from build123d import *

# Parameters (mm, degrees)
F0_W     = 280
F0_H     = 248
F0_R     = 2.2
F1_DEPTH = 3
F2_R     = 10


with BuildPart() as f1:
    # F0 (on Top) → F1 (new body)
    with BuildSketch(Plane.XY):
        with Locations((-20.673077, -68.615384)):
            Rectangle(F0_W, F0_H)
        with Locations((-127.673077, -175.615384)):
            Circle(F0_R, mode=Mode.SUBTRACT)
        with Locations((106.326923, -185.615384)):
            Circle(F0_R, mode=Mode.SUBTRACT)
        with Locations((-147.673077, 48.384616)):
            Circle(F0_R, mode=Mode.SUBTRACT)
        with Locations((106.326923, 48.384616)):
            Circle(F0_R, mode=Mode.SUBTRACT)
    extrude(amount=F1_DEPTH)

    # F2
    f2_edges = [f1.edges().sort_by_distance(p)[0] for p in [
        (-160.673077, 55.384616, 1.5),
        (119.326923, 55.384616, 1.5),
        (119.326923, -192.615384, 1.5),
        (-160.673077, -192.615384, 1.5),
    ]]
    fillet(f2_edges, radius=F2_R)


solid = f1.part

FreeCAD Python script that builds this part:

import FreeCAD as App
import Part
import Sketcher

V = App.Vector


def edges_at(feature, points):
    """Names of the edges that pass closest to the given points."""
    edges = feature.Shape.Edges
    near = lambda p: min(range(len(edges)), key=lambda i: edges[i].distToShape(Part.Vertex(*p))[0])
    return sorted({f"Edge{near(p) + 1}" for p in points})


def add_polygon(sketch, points):
    """Adds a closed chain of lines whose ends are joined by coincident constraints."""
    first, n = sketch.GeometryCount, len(points)
    for a, b in zip(points, points[1:] + points[:1]):
        sketch.addGeometry(Part.LineSegment(App.Vector(*a, 0), App.Vector(*b, 0)), False)
    for i in range(n):
        sketch.addConstraint(Sketcher.Constraint("Coincident", first + i, 2, first + (i + 1) % n, 1))

doc = App.newDocument("Part")
body = doc.addObject("PartDesign::Body", "Body")

# Sketch on XY plane
sketch1 = body.newObject("Sketcher::SketchObject", "Sketch")
sketch1.AttachmentSupport = (doc.getObject("XY_Plane"), [""])
sketch1.MapMode = "FlatFace"
add_polygon(sketch1, [(-160.7, 55.4), (-160.7, -192.6), (119.3, -192.6), (119.3, 55.4)])  # lines 0-3
sketch1.addGeometry(Part.Circle(V(-127.7, -175.6, 0), V(0, 0, 1), 2.2), False)  # 4
sketch1.addGeometry(Part.Circle(V(106.3, -185.6, 0), V(0, 0, 1), 2.2), False)  # 5
sketch1.addGeometry(Part.Circle(V(-147.7, 48.4, 0), V(0, 0, 1), 2.2), False)  # 6
sketch1.addGeometry(Part.Circle(V(106.3, 48.4, 0), V(0, 0, 1), 2.2), False)  # 7
sketch1.addConstraint(Sketcher.Constraint("Vertical", 0))
sketch1.addConstraint(Sketcher.Constraint("Horizontal", 1))
sketch1.addConstraint(Sketcher.Constraint("Vertical", 2))
sketch1.addConstraint(Sketcher.Constraint("Horizontal", 3))
sketch1.addConstraint(Sketcher.Constraint("Equal", 4, 5))
sketch1.addConstraint(Sketcher.Constraint("Equal", 5, 6))
sketch1.addConstraint(Sketcher.Constraint("Equal", 6, 7))
sketch1.addConstraint(Sketcher.Constraint("Horizontal", 6, 3, 7, 3))
sketch1.addConstraint(Sketcher.Constraint("Vertical", 5, 3, 7, 3))
sketch1.addConstraint(Sketcher.Constraint("Diameter", 4, 4.4))
sketch1.addConstraint(Sketcher.Constraint("DistanceX", 1, 1, 1, 2, 280.0))
sketch1.addConstraint(Sketcher.Constraint("DistanceY", 0, 2, 0, 1, 248.0))
sketch1.addConstraint(Sketcher.Constraint("DistanceX", 4, 3, 5, 3, 234.0))
sketch1.addConstraint(Sketcher.Constraint("DistanceY", 5, 3, 4, 3, 10.0))
sketch1.addConstraint(Sketcher.Constraint("DistanceX", 6, 3, 4, 3, 20.0))
sketch1.addConstraint(Sketcher.Constraint("DistanceY", 4, 3, 6, 3, 224.0))
sketch1.addConstraint(Sketcher.Constraint("DistanceX", 0, 2, 4, 3, 33.0))
sketch1.addConstraint(Sketcher.Constraint("DistanceY", 0, 2, 4, 3, 17.0))
sketch1.addConstraint(Sketcher.Constraint("DistanceX", 4, 3, -1, 1, 127.673077))
sketch1.addConstraint(Sketcher.Constraint("DistanceY", 4, 3, -1, 1, 175.615384))
pad1 = body.newObject("PartDesign::Pad", "Pad")
pad1.Profile = sketch1
pad1.Length = 3
doc.recompute()

fillet = body.newObject("PartDesign::Fillet", "Fillet")
fillet.Base = (pad1, edges_at(pad1, [
    (-160.673, 55.385, 1.5),
    (119.327, 55.385, 1.5),
    (119.327, -192.615, 1.5),
    (-160.673, -192.615, 1.5),
]))
fillet.Radius = 10

doc.recompute()
